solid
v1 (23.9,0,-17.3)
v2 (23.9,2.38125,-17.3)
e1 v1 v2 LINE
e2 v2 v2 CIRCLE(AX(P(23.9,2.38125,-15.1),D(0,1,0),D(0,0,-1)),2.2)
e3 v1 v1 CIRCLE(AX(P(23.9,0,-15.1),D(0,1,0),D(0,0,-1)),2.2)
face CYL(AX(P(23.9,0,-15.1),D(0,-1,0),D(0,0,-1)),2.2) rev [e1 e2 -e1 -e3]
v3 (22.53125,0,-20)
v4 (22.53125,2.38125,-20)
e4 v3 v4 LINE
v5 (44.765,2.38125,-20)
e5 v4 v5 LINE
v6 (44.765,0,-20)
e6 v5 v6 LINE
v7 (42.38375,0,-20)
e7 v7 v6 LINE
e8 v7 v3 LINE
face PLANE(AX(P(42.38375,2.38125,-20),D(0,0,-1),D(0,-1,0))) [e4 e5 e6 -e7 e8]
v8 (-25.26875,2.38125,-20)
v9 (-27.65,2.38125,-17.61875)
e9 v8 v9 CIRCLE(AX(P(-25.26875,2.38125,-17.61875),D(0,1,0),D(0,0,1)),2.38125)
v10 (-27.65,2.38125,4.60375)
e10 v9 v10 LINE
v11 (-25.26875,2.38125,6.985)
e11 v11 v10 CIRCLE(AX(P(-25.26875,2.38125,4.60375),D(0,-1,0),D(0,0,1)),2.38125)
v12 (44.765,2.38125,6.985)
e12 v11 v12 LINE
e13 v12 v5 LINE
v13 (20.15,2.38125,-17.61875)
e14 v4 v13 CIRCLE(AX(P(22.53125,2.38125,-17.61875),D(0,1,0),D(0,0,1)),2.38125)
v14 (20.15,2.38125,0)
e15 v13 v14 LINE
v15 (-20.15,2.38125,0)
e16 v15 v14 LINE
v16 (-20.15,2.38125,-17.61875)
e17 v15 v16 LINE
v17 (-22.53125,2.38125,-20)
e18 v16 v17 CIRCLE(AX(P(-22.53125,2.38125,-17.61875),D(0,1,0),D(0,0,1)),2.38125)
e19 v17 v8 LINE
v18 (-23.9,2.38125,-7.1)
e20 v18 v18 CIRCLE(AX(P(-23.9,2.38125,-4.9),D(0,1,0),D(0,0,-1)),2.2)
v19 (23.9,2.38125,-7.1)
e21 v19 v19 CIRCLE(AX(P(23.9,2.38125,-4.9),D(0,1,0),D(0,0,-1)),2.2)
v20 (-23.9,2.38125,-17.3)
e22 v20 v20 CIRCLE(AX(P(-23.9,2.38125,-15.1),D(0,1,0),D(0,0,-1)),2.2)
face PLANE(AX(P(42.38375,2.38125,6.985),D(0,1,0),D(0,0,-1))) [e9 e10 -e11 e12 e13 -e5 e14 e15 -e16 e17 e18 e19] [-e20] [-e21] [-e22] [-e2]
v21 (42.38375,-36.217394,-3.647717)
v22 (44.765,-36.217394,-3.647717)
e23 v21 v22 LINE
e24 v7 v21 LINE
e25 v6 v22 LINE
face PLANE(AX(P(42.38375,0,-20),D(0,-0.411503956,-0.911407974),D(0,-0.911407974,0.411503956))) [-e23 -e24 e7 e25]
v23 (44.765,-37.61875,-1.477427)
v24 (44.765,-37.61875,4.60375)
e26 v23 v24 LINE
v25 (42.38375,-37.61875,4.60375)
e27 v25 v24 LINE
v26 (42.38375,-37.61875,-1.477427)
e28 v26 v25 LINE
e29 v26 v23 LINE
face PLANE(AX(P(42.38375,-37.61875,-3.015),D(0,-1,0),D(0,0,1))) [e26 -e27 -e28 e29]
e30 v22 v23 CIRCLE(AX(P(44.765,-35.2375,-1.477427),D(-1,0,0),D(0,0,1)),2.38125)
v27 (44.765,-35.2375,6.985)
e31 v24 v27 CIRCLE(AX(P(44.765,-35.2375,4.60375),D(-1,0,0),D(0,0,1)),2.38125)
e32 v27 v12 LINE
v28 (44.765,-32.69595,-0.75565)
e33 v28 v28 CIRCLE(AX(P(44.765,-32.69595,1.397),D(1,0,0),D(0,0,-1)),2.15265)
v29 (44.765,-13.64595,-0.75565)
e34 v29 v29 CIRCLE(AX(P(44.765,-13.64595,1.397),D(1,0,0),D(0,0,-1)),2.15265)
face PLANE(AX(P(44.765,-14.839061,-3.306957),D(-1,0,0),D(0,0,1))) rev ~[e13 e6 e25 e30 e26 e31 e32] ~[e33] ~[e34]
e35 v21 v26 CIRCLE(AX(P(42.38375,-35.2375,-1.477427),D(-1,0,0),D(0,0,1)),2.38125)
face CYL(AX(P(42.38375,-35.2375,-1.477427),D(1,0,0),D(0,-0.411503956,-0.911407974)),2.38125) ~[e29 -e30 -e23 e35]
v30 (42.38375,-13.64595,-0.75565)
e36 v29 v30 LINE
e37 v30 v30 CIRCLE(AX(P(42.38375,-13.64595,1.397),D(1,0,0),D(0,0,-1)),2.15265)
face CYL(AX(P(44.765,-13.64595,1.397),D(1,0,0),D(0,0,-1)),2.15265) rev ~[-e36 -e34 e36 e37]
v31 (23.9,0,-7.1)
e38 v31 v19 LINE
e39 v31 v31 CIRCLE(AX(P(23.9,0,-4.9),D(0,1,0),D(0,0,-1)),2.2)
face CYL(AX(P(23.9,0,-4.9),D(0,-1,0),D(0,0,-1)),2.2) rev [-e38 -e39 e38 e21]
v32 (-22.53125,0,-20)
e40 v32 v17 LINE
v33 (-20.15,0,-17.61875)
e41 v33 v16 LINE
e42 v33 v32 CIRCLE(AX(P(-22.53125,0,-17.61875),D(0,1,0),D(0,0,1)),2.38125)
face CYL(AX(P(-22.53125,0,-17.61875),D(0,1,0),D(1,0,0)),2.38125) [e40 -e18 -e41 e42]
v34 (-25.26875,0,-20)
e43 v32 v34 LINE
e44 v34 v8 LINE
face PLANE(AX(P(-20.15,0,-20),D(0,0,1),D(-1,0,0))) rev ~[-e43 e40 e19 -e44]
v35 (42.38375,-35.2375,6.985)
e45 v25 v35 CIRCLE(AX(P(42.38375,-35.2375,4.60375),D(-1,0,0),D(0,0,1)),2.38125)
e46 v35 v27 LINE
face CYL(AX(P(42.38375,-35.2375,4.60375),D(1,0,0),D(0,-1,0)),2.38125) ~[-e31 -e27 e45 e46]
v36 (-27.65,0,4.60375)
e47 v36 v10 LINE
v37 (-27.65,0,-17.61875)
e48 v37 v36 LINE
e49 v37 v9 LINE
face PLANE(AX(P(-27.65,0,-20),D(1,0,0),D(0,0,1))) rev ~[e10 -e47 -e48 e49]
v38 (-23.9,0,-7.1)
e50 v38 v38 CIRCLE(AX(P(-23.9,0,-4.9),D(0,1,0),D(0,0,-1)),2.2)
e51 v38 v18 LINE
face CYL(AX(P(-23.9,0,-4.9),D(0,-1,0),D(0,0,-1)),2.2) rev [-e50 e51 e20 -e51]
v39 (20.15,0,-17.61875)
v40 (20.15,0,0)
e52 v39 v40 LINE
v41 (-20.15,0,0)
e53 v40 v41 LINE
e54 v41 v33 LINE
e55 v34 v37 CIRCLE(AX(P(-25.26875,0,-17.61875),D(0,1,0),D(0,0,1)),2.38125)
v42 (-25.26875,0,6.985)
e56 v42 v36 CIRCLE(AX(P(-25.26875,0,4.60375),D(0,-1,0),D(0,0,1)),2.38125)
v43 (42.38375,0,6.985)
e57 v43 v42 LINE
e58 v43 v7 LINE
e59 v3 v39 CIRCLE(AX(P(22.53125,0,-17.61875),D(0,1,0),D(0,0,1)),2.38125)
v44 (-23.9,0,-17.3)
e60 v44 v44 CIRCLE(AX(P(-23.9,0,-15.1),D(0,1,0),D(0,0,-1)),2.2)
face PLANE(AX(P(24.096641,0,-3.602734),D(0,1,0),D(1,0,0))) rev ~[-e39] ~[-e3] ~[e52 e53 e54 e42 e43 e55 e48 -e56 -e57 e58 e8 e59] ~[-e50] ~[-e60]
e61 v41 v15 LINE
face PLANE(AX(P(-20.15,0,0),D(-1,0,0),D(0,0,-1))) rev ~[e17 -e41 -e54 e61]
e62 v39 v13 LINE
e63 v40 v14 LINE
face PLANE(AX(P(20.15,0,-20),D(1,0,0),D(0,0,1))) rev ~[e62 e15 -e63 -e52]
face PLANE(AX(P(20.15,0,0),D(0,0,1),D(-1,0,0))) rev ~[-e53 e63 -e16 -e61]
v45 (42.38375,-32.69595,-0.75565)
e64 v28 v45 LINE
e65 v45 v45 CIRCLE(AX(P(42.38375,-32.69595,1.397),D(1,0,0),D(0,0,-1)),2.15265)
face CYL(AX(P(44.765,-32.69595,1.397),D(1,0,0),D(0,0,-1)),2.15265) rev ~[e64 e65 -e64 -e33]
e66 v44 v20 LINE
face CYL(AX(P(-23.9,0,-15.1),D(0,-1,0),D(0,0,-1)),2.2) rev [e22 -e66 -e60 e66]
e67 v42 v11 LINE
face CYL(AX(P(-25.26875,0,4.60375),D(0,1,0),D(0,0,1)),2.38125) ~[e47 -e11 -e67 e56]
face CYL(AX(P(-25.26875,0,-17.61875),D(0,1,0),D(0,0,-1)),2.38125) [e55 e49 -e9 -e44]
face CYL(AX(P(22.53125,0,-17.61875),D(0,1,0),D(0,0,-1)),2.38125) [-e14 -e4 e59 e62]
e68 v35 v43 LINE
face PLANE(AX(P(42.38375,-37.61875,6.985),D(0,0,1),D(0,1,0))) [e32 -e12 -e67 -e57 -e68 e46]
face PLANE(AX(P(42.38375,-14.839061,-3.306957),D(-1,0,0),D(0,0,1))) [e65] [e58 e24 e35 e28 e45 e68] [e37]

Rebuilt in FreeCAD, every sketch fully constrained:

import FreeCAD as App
import Part
import Sketcher
from FreeCAD import Vector
Q = App.Units.Quantity


def edges_at(feature, points):
    """Names of the edges that pass closest to the given points."""
    edges = feature.Shape.Edges
    near = lambda p: min(range(len(edges)), key=lambda i: edges[i].distToShape(Part.Vertex(*p))[0])
    return sorted({f"Edge{near(p) + 1}" for p in points})

doc = App.newDocument("Part")
params = doc.addObject("Spreadsheet::Sheet", "Params")
for row, (alias, value) in enumerate([
    ("sketch1_diameter", "4.4 mm"),
    ("sketch1_height", "20 mm"),
    ("sketch1_width", "40.3 mm"),
    ("sketch1_width2", "7.5 mm"),
    ("pad1_length", "2.38125 mm"),
    ("sketch2_width", "40 mm"),
    ("sketch2_height", "10 mm"),
    ("pad2_length", "2.38125 mm"),
    ("pocket1_length", "2.38125 mm"),
    ("fillet_radius", "2.38125 mm"),
], start=1):
    params.set(f"A{row}", alias)
    params.set(f"B{row}", "=" + value)
    params.setAlias(f"B{row}", alias)

body = doc.addObject("PartDesign::Body", "Body")

# Sketch on XZ plane
sketch1 = body.newObject("Sketcher::SketchObject", "Sketch")
sketch1.AttachmentSupport = (doc.getObject("XZ_Plane"), [""])
sketch1.MapMode = "FlatFace"
sketch1.addGeometry(Part.LineSegment(Vector(-27.6, 7, 0), Vector(42.4, 7, 0)), False)
sketch1.addGeometry(Part.LineSegment(Vector(42.4, 7, 0), Vector(42.4, -20, 0)), False)
sketch1.addGeometry(Part.LineSegment(Vector(42.4, -20, 0), Vector(20.1, -20, 0)), False)
sketch1.addGeometry(Part.LineSegment(Vector(20.1, -20, 0), Vector(20.1, 0, 0)), False)
sketch1.addGeometry(Part.LineSegment(Vector(20.1, 0, 0), Vector(-20.1, 0, 0)), False)
sketch1.addGeometry(Part.LineSegment(Vector(-20.1, 0, 0), Vector(-20.1, -20, 0)), False)
sketch1.addGeometry(Part.LineSegment(Vector(-20.1, -20, 0), Vector(-27.6, -20, 0)), False)
sketch1.addGeometry(Part.LineSegment(Vector(-27.6, -20, 0), Vector(-27.6, 7, 0)), False)
sketch1.addGeometry(Part.Circle(Vector(-23.9, -4.9, 0), Vector(0, 0, 1), 2.2), False)
sketch1.addGeometry(Part.Circle(Vector(-23.9, -15.1, 0), Vector(0, 0, 1), 2.2), False)
sketch1.addGeometry(Part.Circle(Vector(23.9, -15.1, 0), Vector(0, 0, 1), 2.2), False)
sketch1.addGeometry(Part.Circle(Vector(23.9, -4.9, 0), Vector(0, 0, 1), 2.2), False)
sketch1.addConstraint(Sketcher.Constraint("Coincident", 0, 2, 1, 1))
sketch1.addConstraint(Sketcher.Constraint("Coincident", 1, 2, 2, 1))
sketch1.addConstraint(Sketcher.Constraint("Coincident", 2, 2, 3, 1))
sketch1.addConstraint(Sketcher.Constraint("Coincident", 3, 2, 4, 1))
sketch1.addConstraint(Sketcher.Constraint("Coincident", 4, 2, 5, 1))
sketch1.addConstraint(Sketcher.Constraint("Coincident", 5, 2, 6, 1))
sketch1.addConstraint(Sketcher.Constraint("Coincident", 6, 2, 7, 1))
sketch1.addConstraint(Sketcher.Constraint("Coincident", 7, 2, 0, 1))
sketch1.addConstraint(Sketcher.Constraint("Horizontal", 0))
sketch1.addConstraint(Sketcher.Constraint("Vertical", 1))
sketch1.addConstraint(Sketcher.Constraint("Horizontal", 2))
sketch1.addConstraint(Sketcher.Constraint("Vertical", 3))
sketch1.addConstraint(Sketcher.Constraint("Horizontal", 4))
sketch1.addConstraint(Sketcher.Constraint("Vertical", 5))
sketch1.addConstraint(Sketcher.Constraint("Horizontal", 6))
sketch1.addConstraint(Sketcher.Constraint("Vertical", 7))
sketch1.addConstraint(Sketcher.Constraint("Equal", 8, 9))
sketch1.addConstraint(Sketcher.Constraint("Equal", 9, 10))
sketch1.addConstraint(Sketcher.Constraint("Equal", 10, 11))
sketch1.addConstraint(Sketcher.Constraint("Symmetric", 3, 2, 4, 2, -1, 1))
sketch1.addConstraint(Sketcher.Constraint("Symmetric", 9, 3, 10, 3, -2))
sketch1.addConstraint(Sketcher.Constraint("Symmetric", 8, 3, 11, 3, -2))
sketch1.addConstraint(Sketcher.Constraint("Horizontal", 2, 2, 5, 2))
sketch1.addConstraint(Sketcher.Constraint("Vertical", 8, 3, 9, 3))
sketch1.addConstraint(Sketcher.Constraint("Diameter", 8, Q("4.4 mm")))
sketch1.addConstraint(Sketcher.Constraint("DistanceY", 3, 1, 3, 2, Q("20 mm")))
sketch1.addConstraint(Sketcher.Constraint("DistanceX", 4, 2, 4, 1, Q("40.3 mm")))
sketch1.addConstraint(Sketcher.Constraint("DistanceX", 6, 2, 6, 1, Q("7.5 mm")))
sketch1.addConstraint(Sketcher.Constraint("DistanceX", 8, 3, -1, 1, Q("23.9 mm")))
sketch1.addConstraint(Sketcher.Constraint("DistanceY", 8, 3, -1, 1, Q("4.9 mm")))
sketch1.addConstraint(Sketcher.Constraint("DistanceY", 9, 3, -1, 1, Q("15.1 mm")))
sketch1.addConstraint(Sketcher.Constraint("DistanceY", 1, 2, 1, 1, Q("26.985 mm")))
sketch1.addConstraint(Sketcher.Constraint("DistanceX", 0, 1, 0, 2, Q("70.03375 mm")))
sketch1.setExpression("Constraints[24]", "Params.sketch1_diameter")
sketch1.setExpression("Constraints[25]", "Params.sketch1_height")
sketch1.setExpression("Constraints[26]", "Params.sketch1_width")
sketch1.setExpression("Constraints[27]", "Params.sketch1_width2")
pad1 = body.newObject("PartDesign::Pad", "Pad")
pad1.Profile = sketch1
pad1.setExpression("Length", "Params.pad1_length")
pad1.Reversed = True

# Sketch on YZ plane
sketch2 = body.newObject("Sketcher::SketchObject", "Sketch001")
sketch2.AttachmentSupport = (doc.getObject("YZ_Plane"), [""])
sketch2.MapMode = "FlatFace"
sketch2.AttachmentOffset = App.Placement(Vector(0, 0, 42.38375), App.Rotation())
sketch2.addGeometry(Part.LineSegment(Vector(-37.6, -3, 0), Vector(0, -20, 0)), False)
sketch2.addGeometry(Part.LineSegment(Vector(0, -20, 0), Vector(2.4, -20, 0)), False)
sketch2.addGeometry(Part.LineSegment(Vector(2.4, -20, 0), Vector(2.4, 7, 0)), False)
sketch2.addGeometry(Part.LineSegment(Vector(2.4, 7, 0), Vector(-37.6, 7, 0)), False)
sketch2.addGeometry(Part.LineSegment(Vector(-37.6, 7, 0), Vector(-37.6, -3, 0)), False)
sketch2.addConstraint(Sketcher.Constraint("Coincident", 0, 2, 1, 1))
sketch2.addConstraint(Sketcher.Constraint("Coincident", 1, 2, 2, 1))
sketch2.addConstraint(Sketcher.Constraint("Coincident", 2, 2, 3, 1))
sketch2.addConstraint(Sketcher.Constraint("Coincident", 3, 2, 4, 1))
sketch2.addConstraint(Sketcher.Constraint("Coincident", 4, 2, 0, 1))
sketch2.addConstraint(Sketcher.Constraint("Horizontal", 1))
sketch2.addConstraint(Sketcher.Constraint("Vertical", 2))
sketch2.addConstraint(Sketcher.Constraint("Horizontal", 3))
sketch2.addConstraint(Sketcher.Constraint("Vertical", 4))
sketch2.addConstraint(Sketcher.Constraint("PointOnObject", 0, 2, -2))
sketch2.addConstraint(Sketcher.Constraint("DistanceX", 3, 2, 3, 1, Q("40 mm")))
sketch2.addConstraint(Sketcher.Constraint("DistanceY", 4, 2, 4, 1, Q("10 mm")))
sketch2.addConstraint(Sketcher.Constraint("DistanceY", 0, 2, -1, 1, Q("20 mm")))
sketch2.addConstraint(Sketcher.Constraint("DistanceY", 2, 1, 2, 2, Q("26.985 mm")))
sketch2.addConstraint(Sketcher.Constraint("DistanceX", 1, 1, 1, 2, Q("2.38125 mm")))
sketch2.setExpression("Constraints[10]", "Params.sketch2_width")
sketch2.setExpression("Constraints[11]", "Params.sketch2_height")
pad2 = body.newObject("PartDesign::Pad", "Pad001")
pad2.Profile = sketch2
pad2.setExpression("Length", "Params.pad2_length")

# Sketch on YZ plane
sketch3 = body.newObject("Sketcher::SketchObject", "Sketch002")
sketch3.AttachmentSupport = (doc.getObject("YZ_Plane"), [""])
sketch3.MapMode = "FlatFace"
sketch3.AttachmentOffset = App.Placement(Vector(0, 0, 44.765), App.Rotation())
sketch3.addGeometry(Part.Circle(Vector(-13.6, 1.4, 0), Vector(0, 0, 1), 2.2), False)
sketch3.addGeometry(Part.Circle(Vector(-32.7, 1.4, 0), Vector(0, 0, 1), 2.2), False)
sketch3.addConstraint(Sketcher.Constraint("Equal", 0, 1))
sketch3.addConstraint(Sketcher.Constraint("Horizontal", 0, 3, 1, 3))
sketch3.addConstraint(Sketcher.Constraint("Diameter", 0, Q("4.3053 mm")))
sketch3.addConstraint(Sketcher.Constraint("DistanceX", 1, 3, 0, 3, Q("19.05 mm")))
sketch3.addConstraint(Sketcher.Constraint("DistanceY", -1, 1, 0, 3, Q("1.397 mm")))
sketch3.addConstraint(Sketcher.Constraint("DistanceX", 0, 3, -1, 1, Q("13.64595 mm")))
pocket1 = body.newObject("PartDesign::Pocket", "Pocket")
pocket1.Profile = sketch3
pocket1.setExpression("Length", "Params.pocket1_length")
doc.recompute()

fillet = body.newObject("PartDesign::Fillet", "Fillet")
fillet.Base = (pocket1, edges_at(pocket1, [
    (-27.65, 1.191, 6.985),
    (-27.65, 1.191, -20),
    (-20.15, 1.191, -20),
    (20.15, 1.191, -20),
    (43.574, -37.619, 6.985),
    (43.574, -37.619, -3.015),
]))
fillet.setExpression("Radius", "Params.fillet_radius")

doc.recompute()
